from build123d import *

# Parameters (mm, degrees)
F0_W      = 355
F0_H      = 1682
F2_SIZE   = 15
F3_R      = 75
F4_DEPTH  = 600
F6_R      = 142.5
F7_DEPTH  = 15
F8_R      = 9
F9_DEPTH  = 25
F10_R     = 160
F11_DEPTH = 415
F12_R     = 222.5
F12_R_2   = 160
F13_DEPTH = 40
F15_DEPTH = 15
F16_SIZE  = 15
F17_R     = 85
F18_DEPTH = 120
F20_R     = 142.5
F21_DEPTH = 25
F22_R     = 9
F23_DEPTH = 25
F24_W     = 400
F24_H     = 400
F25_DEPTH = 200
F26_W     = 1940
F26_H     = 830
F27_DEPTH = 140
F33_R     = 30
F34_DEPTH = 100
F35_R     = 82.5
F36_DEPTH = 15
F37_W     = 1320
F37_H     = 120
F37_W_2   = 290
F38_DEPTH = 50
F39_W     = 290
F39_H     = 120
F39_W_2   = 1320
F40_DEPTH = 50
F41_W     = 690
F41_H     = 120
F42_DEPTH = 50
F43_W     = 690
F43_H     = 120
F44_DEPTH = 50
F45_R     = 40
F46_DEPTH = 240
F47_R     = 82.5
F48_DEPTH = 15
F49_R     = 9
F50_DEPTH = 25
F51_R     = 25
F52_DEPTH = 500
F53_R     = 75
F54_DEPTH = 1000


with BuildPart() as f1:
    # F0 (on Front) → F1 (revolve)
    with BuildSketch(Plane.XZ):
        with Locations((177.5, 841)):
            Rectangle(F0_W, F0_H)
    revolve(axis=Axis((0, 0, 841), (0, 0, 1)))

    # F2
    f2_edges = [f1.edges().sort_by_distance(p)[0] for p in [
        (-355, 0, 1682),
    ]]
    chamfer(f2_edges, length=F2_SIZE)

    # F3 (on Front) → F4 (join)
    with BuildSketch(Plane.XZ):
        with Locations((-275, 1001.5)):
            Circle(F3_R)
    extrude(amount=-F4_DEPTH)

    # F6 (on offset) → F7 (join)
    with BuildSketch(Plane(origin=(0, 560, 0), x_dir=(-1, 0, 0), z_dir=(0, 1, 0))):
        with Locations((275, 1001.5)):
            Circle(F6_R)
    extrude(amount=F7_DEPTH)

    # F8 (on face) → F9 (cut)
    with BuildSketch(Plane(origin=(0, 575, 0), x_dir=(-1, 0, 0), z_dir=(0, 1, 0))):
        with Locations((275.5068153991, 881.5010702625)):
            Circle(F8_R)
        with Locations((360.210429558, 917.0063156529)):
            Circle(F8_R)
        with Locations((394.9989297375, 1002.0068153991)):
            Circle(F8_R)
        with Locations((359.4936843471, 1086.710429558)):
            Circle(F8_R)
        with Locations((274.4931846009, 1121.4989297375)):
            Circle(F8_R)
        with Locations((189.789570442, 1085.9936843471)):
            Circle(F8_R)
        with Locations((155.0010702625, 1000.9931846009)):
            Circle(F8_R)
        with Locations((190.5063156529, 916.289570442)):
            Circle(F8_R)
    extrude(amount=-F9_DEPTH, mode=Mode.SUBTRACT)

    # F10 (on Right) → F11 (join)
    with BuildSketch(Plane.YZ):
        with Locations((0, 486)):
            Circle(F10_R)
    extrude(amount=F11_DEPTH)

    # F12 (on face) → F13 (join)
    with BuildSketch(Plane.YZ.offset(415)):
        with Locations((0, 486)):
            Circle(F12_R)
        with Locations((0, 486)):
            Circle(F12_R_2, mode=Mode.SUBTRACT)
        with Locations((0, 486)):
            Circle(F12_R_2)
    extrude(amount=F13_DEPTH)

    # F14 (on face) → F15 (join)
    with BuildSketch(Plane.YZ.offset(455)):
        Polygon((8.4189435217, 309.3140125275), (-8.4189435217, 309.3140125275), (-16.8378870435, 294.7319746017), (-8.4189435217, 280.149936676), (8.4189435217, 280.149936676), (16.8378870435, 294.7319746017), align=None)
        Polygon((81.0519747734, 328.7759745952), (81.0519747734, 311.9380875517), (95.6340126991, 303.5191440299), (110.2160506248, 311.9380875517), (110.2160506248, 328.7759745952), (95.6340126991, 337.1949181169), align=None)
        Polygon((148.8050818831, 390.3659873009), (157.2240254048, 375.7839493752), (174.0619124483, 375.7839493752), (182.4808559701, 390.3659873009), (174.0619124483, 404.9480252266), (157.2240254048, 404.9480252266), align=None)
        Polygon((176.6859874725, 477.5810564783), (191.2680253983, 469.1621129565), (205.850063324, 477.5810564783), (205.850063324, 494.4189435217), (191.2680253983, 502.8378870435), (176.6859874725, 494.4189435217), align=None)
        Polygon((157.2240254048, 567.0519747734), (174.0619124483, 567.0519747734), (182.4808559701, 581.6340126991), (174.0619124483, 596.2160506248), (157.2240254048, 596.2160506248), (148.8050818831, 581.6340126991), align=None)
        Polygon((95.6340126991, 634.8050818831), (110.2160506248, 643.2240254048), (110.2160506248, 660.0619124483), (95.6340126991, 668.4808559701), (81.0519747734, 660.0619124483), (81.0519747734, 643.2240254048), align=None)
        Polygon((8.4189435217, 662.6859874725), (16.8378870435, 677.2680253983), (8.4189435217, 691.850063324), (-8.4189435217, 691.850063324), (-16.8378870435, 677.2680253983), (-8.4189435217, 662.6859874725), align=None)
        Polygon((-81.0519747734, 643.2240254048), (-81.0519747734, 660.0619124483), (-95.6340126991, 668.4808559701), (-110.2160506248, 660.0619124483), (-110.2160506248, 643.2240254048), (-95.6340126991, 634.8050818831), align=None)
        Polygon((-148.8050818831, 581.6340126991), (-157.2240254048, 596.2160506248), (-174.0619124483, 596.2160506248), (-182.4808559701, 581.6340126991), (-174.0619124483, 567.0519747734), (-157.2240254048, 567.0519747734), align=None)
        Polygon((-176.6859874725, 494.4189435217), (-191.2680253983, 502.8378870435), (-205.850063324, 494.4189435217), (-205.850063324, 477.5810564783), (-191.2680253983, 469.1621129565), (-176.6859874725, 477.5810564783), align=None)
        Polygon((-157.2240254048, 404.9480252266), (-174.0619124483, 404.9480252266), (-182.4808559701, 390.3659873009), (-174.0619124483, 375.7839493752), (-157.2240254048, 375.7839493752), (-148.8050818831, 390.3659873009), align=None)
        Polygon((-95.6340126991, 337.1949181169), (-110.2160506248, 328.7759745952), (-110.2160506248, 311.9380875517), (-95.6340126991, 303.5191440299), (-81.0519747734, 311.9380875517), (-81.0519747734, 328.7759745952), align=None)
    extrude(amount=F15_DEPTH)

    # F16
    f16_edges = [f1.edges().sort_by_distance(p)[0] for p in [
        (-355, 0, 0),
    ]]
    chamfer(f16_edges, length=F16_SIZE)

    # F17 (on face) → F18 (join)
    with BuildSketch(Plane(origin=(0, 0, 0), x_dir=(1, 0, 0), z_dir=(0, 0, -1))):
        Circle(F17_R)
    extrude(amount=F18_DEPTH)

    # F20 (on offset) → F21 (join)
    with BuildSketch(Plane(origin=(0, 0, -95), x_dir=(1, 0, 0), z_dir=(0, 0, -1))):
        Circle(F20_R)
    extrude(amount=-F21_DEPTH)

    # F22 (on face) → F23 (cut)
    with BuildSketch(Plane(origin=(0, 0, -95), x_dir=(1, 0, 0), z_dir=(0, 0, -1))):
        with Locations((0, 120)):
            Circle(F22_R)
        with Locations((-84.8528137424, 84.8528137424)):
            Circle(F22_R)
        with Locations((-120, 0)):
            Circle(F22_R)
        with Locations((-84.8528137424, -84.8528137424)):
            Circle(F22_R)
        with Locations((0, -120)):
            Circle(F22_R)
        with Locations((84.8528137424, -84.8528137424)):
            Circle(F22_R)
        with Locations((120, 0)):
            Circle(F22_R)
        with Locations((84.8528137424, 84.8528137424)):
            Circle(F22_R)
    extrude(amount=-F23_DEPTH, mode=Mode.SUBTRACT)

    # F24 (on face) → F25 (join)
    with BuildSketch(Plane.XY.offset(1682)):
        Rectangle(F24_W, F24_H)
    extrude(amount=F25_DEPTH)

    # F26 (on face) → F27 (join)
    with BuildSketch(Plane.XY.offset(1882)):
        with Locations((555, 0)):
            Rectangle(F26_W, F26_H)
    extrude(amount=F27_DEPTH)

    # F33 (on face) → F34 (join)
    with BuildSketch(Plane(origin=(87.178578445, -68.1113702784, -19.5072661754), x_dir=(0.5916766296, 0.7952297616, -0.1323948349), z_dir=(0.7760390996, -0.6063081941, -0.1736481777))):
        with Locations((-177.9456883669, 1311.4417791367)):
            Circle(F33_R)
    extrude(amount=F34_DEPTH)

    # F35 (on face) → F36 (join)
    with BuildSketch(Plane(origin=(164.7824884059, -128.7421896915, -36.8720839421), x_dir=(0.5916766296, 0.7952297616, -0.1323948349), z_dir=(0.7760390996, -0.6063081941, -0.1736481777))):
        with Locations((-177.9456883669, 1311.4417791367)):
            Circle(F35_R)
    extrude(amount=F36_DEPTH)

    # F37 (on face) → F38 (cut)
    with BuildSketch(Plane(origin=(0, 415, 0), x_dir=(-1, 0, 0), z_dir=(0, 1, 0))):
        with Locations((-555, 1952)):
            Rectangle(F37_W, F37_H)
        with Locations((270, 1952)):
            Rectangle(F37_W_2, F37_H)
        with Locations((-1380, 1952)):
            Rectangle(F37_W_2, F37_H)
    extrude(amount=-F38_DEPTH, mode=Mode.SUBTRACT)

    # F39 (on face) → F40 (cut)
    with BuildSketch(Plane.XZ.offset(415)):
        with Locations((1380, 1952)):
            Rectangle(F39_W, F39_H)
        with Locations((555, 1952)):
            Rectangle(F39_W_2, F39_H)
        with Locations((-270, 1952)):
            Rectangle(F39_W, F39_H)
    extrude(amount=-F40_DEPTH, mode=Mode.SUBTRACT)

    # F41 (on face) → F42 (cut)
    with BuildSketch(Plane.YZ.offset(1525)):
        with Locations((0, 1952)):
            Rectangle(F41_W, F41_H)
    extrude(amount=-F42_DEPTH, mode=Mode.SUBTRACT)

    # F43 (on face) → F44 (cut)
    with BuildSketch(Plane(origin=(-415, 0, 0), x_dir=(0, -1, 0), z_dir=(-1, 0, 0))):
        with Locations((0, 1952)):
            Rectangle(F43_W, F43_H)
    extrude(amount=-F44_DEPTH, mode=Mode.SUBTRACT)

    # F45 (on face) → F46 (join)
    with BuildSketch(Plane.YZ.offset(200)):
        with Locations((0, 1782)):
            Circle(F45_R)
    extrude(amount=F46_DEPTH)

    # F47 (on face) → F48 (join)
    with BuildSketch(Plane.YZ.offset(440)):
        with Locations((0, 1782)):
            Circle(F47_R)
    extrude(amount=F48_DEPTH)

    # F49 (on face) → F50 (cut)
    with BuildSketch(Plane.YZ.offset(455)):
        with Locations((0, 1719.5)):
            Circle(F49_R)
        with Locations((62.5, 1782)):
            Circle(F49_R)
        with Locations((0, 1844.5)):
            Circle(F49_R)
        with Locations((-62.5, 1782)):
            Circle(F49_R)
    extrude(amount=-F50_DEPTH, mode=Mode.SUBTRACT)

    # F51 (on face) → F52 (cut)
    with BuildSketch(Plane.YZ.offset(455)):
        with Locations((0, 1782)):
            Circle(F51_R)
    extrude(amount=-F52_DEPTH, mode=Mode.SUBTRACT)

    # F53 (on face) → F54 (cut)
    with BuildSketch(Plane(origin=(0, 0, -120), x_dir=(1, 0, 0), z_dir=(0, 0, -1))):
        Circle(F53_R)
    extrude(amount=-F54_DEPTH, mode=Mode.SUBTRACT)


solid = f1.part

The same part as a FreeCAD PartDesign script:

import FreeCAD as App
import Part
import Sketcher

V = App.Vector
Q = App.Units.Quantity


def edges_at(feature, points):
    """Names of the edges that pass closest to the given points."""
    edges = feature.Shape.Edges
    near = lambda p: min(range(len(edges)), key=lambda i: edges[i].distToShape(Part.Vertex(*p))[0])
    return sorted({f"Edge{near(p) + 1}" for p in points})

doc = App.newDocument("Part")
body = doc.addObject("PartDesign::Body", "Body")

# Sketch on XZ plane
sketch1 = doc.addObject("Sketcher::SketchObject", "Sketch")
body.addObject(sketch1)
sketch1.AttachmentSupport = (doc.XZ_Plane, [""])
sketch1.MapMode = "FlatFace"
sketch1.addGeometry([
    Part.LineSegment(V(0, 1682, 0), V(0, 0, 0)),
    Part.LineSegment(V(0, 0, 0), V(355, 0, 0)),
    Part.LineSegment(V(355, 0, 0), V(355, 1682, 0)),
    Part.LineSegment(V(355, 1682, 0), V(0, 1682, 0)),
], False)
sketch1.addConstraint([
    Sketcher.Constraint("Coincident", 0, 2, 1, 1),
    Sketcher.Constraint("Coincident", 1, 2, 2, 1),
    Sketcher.Constraint("Coincident", 2, 2, 3, 1),
    Sketcher.Constraint("Coincident", 3, 2, 0, 1),
    Sketcher.Constraint("Vertical", 0),
    Sketcher.Constraint("Horizontal", 1),
    Sketcher.Constraint("Vertical", 2),
    Sketcher.Constraint("Horizontal", 3),
    Sketcher.Constraint("Coincident", 0, 2, -1, 1),
    Sketcher.Constraint("DistanceX", 1, 1, 1, 2, Q("355 mm")),
    Sketcher.Constraint("DistanceY", 0, 2, 0, 1, Q("1682 mm")),
])
revolution = doc.addObject("PartDesign::Revolution", "Revolution")
body.addObject(revolution)
revolution.Profile = sketch1
revolution.ReferenceAxis = (sketch1, ["V_Axis"])
revolution.Angle = 360
doc.recompute()

chamfer = doc.addObject("PartDesign::Chamfer", "Chamfer")
body.addObject(chamfer)
chamfer.Base = (revolution, edges_at(revolution, [(-355, 0, 1682)]))
chamfer.Size = 15

# Sketch on XZ plane
sketch2 = doc.addObject("Sketcher::SketchObject", "Sketch001")
body.addObject(sketch2)
sketch2.AttachmentSupport = (doc.XZ_Plane, [""])
sketch2.MapMode = "FlatFace"
sketch2.addGeometry(Part.Circle(V(-275, 1002, 0), V(0, 0, 1), 75), False)
sketch2.addConstraint([
    Sketcher.Constraint("Diameter", 0, Q("150 mm")),
    Sketcher.Constraint("DistanceX", 0, 3, -1, 1, Q("275 mm")),
    Sketcher.Constraint("DistanceY", -1, 1, 0, 3, Q("1001.5 mm")),
])
pad1 = doc.addObject("PartDesign::Pad", "Pad")
body.addObject(pad1)
pad1.Profile = sketch2
pad1.Length = 600
pad1.Reversed = True

# Sketch on XZ plane
sketch3 = doc.addObject("Sketcher::SketchObject", "Sketch002")
body.addObject(sketch3)
sketch3.AttachmentSupport = (doc.XZ_Plane, [""])
sketch3.MapMode = "FlatFace"
sketch3.AttachmentOffset = App.Placement(V(0, 0, -560), App.Rotation())
sketch3.addGeometry(Part.Circle(V(-275, 1002, 0), V(0, 0, 1), 142), False)
sketch3.addConstraint([
    Sketcher.Constraint("Diameter", 0, Q("285 mm")),
    Sketcher.Constraint("DistanceX", 0, 3, -1, 1, Q("275 mm")),
    Sketcher.Constraint("DistanceY", -1, 1, 0, 3, Q("1001.5 mm")),
])
pad2 = doc.addObject("PartDesign::Pad", "Pad001")
body.addObject(pad2)
pad2.Profile = sketch3
pad2.Length = 15
pad2.Reversed = True

# Sketch on XZ plane
sketch4 = doc.addObject("Sketcher::SketchObject", "Sketch003")
body.addObject(sketch4)
sketch4.AttachmentSupport = (doc.XZ_Plane, [""])
sketch4.MapMode = "FlatFace"
sketch4.AttachmentOffset = App.Placement(V(0, 0, -575), App.Rotation())
sketch4.addGeometry([
    Part.Circle(V(-276, 882, 0), V(0, 0, 1), 9),  # 0
    Part.Circle(V(-360, 917, 0), V(0, 0, 1), 9),  # 1
    Part.Circle(V(-395, 1002, 0), V(0, 0, 1), 9),  # 2
    Part.Circle(V(-359, 1087, 0), V(0, 0, 1), 9),  # 3
    Part.Circle(V(-274, 1121, 0), V(0, 0, 1), 9),  # 4
    Part.Circle(V(-190, 1086, 0), V(0, 0, 1), 9),  # 5
    Part.Circle(V(-155, 1001, 0), V(0, 0, 1), 9),  # 6
    Part.Circle(V(-191, 916, 0), V(0, 0, 1), 9),  # 7
], False)
sketch4.addConstraint([
    Sketcher.Constraint("Equal", 0, 1),
    Sketcher.Constraint("Equal", 1, 2),
    Sketcher.Constraint("Equal", 2, 3),
    Sketcher.Constraint("Equal", 3, 4),
    Sketcher.Constraint("Equal", 4, 5),
    Sketcher.Constraint("Equal", 5, 6),
    Sketcher.Constraint("Equal", 6, 7),
    Sketcher.Constraint("Diameter", 0, Q("18 mm")),
    Sketcher.Constraint("DistanceX", 2, 3, 1, 3, Q("34.7885 mm")),
    Sketcher.Constraint("DistanceY", 1, 3, 2, 3, Q("85.0005 mm")),
    Sketcher.Constraint("DistanceX", 3, 3, 4, 3, Q("85.0005 mm")),
    Sketcher.Constraint("DistanceY", 3, 3, 4, 3, Q("34.7885 mm")),
    Sketcher.Constraint("DistanceX", 5, 3, 6, 3, Q("34.7885 mm")),
    Sketcher.Constraint("DistanceY", 6, 3, 5, 3, Q("85.0005 mm")),
    Sketcher.Constraint("DistanceX", 0, 3, 7, 3, Q("85.0005 mm")),
    Sketcher.Constraint("DistanceY", 0, 3, 7, 3, Q("34.7885 mm")),
    Sketcher.Constraint("DistanceY", -1, 1, 0, 3, Q("881.50107 mm")),
    Sketcher.Constraint("DistanceX", 1, 3, -1, 1, Q("360.21043 mm")),
    Sketcher.Constraint("DistanceY", -1, 1, 3, 3, Q("1086.71043 mm")),
    Sketcher.Constraint("DistanceX", 5, 3, -1, 1, Q("189.78957 mm")),
    Sketcher.Constraint("DistanceX", 3, 3, 0, 3, Q("83.986869 mm")),
    Sketcher.Constraint("DistanceY", 2, 3, 5, 3, Q("83.986869 mm")),
    Sketcher.Constraint("DistanceX", 0, 3, -1, 1, Q("275.506815 mm")),
    Sketcher.Constraint("DistanceY", -1, 1, 1, 3, Q("917.006316 mm")),
])
pocket1 = doc.addObject("PartDesign::Pocket", "Pocket")
body.addObject(pocket1)
pocket1.Profile = sketch4
pocket1.Length = 25
pocket1.Reversed = True

# Sketch on YZ plane
sketch5 = doc.addObject("Sketcher::SketchObject", "Sketch004")
body.addObject(sketch5)
sketch5.AttachmentSupport = (doc.YZ_Plane, [""])
sketch5.MapMode = "FlatFace"
sketch5.addGeometry(Part.Circle(V(0, 486, 0), V(0, 0, 1), 160), False)
sketch5.addConstraint([
    Sketcher.Constraint("PointOnObject", 0, 3, -2),
    Sketcher.Constraint("Diameter", 0, Q("320 mm")),
    Sketcher.Constraint("DistanceY", -1, 1, 0, 3, Q("486 mm")),
])
pad3 = doc.addObject("PartDesign::Pad", "Pad002")
body.addObject(pad3)
pad3.Profile = sketch5
pad3.Length = 415

# Sketch on YZ plane
sketch6 = doc.addObject("Sketcher::SketchObject", "Sketch005")
body.addObject(sketch6)
sketch6.AttachmentSupport = (doc.YZ_Plane, [""])
sketch6.MapMode = "FlatFace"
sketch6.AttachmentOffset = App.Placement(V(0, 0, 415), App.Rotation())
sketch6.addGeometry(Part.Circle(V(0, 486, 0), V(0, 0, 1), 222), False)
sketch6.addConstraint([
    Sketcher.Constraint("PointOnObject", 0, 3, -2),
    Sketcher.Constraint("Diameter", 0, Q("445 mm")),
    Sketcher.Constraint("DistanceY", -1, 1, 0, 3, Q("486 mm")),
])
pad4 = doc.addObject("PartDesign::Pad", "Pad003")
body.addObject(pad4)
pad4.Profile = sketch6
pad4.Length = 40

# Sketch on YZ plane
sketch7 = doc.addObject("Sketcher::SketchObject", "Sketch006")
body.addObject(sketch7)
sketch7.AttachmentSupport = (doc.YZ_Plane, [""])
sketch7.MapMode = "FlatFace"
sketch7.AttachmentOffset = App.Placement(V(0, 0, 455), App.Rotation())
sketch7.addGeometry([
    Part.LineSegment(V(8, 309, 0), V(-8, 309, 0)),  # 0
    Part.LineSegment(V(-8, 309, 0), V(-17, 295, 0)),  # 1
    Part.LineSegment(V(-17, 295, 0), V(-8, 280, 0)),  # 2
    Part.LineSegment(V(-8, 280, 0), V(8, 280, 0)),  # 3
    Part.LineSegment(V(8, 280, 0), V(17, 295, 0)),  # 4
    Part.LineSegment(V(17, 295, 0), V(8, 309, 0)),  # 5
    Part.LineSegment(V(81, 329, 0), V(81, 312, 0)),  # 6
    Part.LineSegment(V(81, 312, 0), V(96, 304, 0)),  # 7
    Part.LineSegment(V(96, 304, 0), V(110, 312, 0)),  # 8
    Part.LineSegment(V(110, 312, 0), V(110, 329, 0)),  # 9
    Part.LineSegment(V(110, 329, 0), V(96, 337, 0)),  # 10
    Part.LineSegment(V(96, 337, 0), V(81, 329, 0)),  # 11
    Part.LineSegment(V(149, 390, 0), V(157, 376, 0)),  # 12
    Part.LineSegment(V(157, 376, 0), V(174, 376, 0)),  # 13
    Part.LineSegment(V(174, 376, 0), V(182, 390, 0)),  # 14
    Part.LineSegment(V(182, 390, 0), V(174, 405, 0)),  # 15
    Part.LineSegment(V(174, 405, 0), V(157, 405, 0)),  # 16
    Part.LineSegment(V(157, 405, 0), V(149, 390, 0)),  # 17
    Part.LineSegment(V(177, 478, 0), V(191, 469, 0)),  # 18
    Part.LineSegment(V(191, 469, 0), V(206, 478, 0)),  # 19
    Part.LineSegment(V(206, 478, 0), V(206, 494, 0)),  # 20
    Part.LineSegment(V(206, 494, 0), V(191, 503, 0)),  # 21
    Part.LineSegment(V(191, 503, 0), V(177, 494, 0)),  # 22
    Part.LineSegment(V(177, 494, 0), V(177, 478, 0)),  # 23
    Part.LineSegment(V(157, 567, 0), V(174, 567, 0)),  # 24
    Part.LineSegment(V(174, 567, 0), V(182, 582, 0)),  # 25
    Part.LineSegment(V(182, 582, 0), V(174, 596, 0)),  # 26
    Part.LineSegment(V(174, 596, 0), V(157, 596, 0)),  # 27
    Part.LineSegment(V(157, 596, 0), V(149, 582, 0)),  # 28
    Part.LineSegment(V(149, 582, 0), V(157, 567, 0)),  # 29
    Part.LineSegment(V(96, 635, 0), V(110, 643, 0)),  # 30
    Part.LineSegment(V(110, 643, 0), V(110, 660, 0)),  # 31
    Part.LineSegment(V(110, 660, 0), V(96, 668, 0)),  # 32
    Part.LineSegment(V(96, 668, 0), V(81, 660, 0)),  # 33
    Part.LineSegment(V(81, 660, 0), V(81, 643, 0)),  # 34
    Part.LineSegment(V(81, 643, 0), V(96, 635, 0)),  # 35
    Part.LineSegment(V(8, 663, 0), V(17, 677, 0)),  # 36
    Part.LineSegment(V(17, 677, 0), V(8, 692, 0)),  # 37
    Part.LineSegment(V(8, 692, 0), V(-8, 692, 0)),  # 38
    Part.LineSegment(V(-8, 692, 0), V(-17, 677, 0)),  # 39
    Part.LineSegment(V(-17, 677, 0), V(-8, 663, 0)),  # 40
    Part.LineSegment(V(-8, 663, 0), V(8, 663, 0)),  # 41
    Part.LineSegment(V(-81, 643, 0), V(-81, 660, 0)),  # 42
    Part.LineSegment(V(-81, 660, 0), V(-96, 668, 0)),  # 43
    Part.LineSegment(V(-96, 668, 0), V(-110, 660, 0)),  # 44
    Part.LineSegment(V(-110, 660, 0), V(-110, 643, 0)),  # 45
    Part.LineSegment(V(-110, 643, 0), V(-96, 635, 0)),  # 46
    Part.LineSegment(V(-96, 635, 0), V(-81, 643, 0)),  # 47
    Part.LineSegment(V(-149, 582, 0), V(-157, 596, 0)),  # 48
    Part.LineSegment(V(-157, 596, 0), V(-174, 596, 0)),  # 49
    Part.LineSegment(V(-174, 596, 0), V(-182, 582, 0)),  # 50
    Part.LineSegment(V(-182, 582, 0), V(-174, 567, 0)),  # 51
    Part.LineSegment(V(-174, 567, 0), V(-157, 567, 0)),  # 52
    Part.LineSegment(V(-157, 567, 0), V(-149, 582, 0)),  # 53
    Part.LineSegment(V(-177, 494, 0), V(-191, 503, 0)),  # 54
    Part.LineSegment(V(-191, 503, 0), V(-206, 494, 0)),  # 55
    Part.LineSegment(V(-206, 494, 0), V(-206, 478, 0)),  # 56
    Part.LineSegment(V(-206, 478, 0), V(-191, 469, 0)),  # 57
    Part.LineSegment(V(-191, 469, 0), V(-177, 478, 0)),  # 58
    Part.LineSegment(V(-177, 478, 0), V(-177, 494, 0)),  # 59
    Part.LineSegment(V(-157, 405, 0), V(-174, 405, 0)),  # 60
    Part.LineSegment(V(-174, 405, 0), V(-182, 390, 0)),  # 61
    Part.LineSegment(V(-182, 390, 0), V(-174, 376, 0)),  # 62
    Part.LineSegment(V(-174, 376, 0), V(-157, 376, 0)),  # 63
    Part.LineSegment(V(-157, 376, 0), V(-149, 390, 0)),  # 64
    Part.LineSegment(V(-149, 390, 0), V(-157, 405, 0)),  # 65
    Part.LineSegment(V(-96, 337, 0), V(-110, 329, 0)),  # 66
    Part.LineSegment(V(-110, 329, 0), V(-110, 312, 0)),  # 67
    Part.LineSegment(V(-110, 312, 0), V(-96, 304, 0)),  # 68
    Part.LineSegment(V(-96, 304, 0), V(-81, 312, 0)),  # 69
    Part.LineSegment(V(-81, 312, 0), V(-81, 329, 0)),  # 70
    Part.LineSegment(V(-81, 329, 0), V(-96, 337, 0)),  # 71
], False)
sketch7.addConstraint([
    Sketcher.Constraint("Coincident", 0, 2, 1, 1),
    Sketcher.Constraint("Coincident", 1, 2, 2, 1),
    Sketcher.Constraint("Coincident", 2, 2, 3, 1),
    Sketcher.Constraint("Coincident", 3, 2, 4, 1),
    Sketcher.Constraint("Coincident", 4, 2, 5, 1),
    Sketcher.Constraint("Coincident", 5, 2, 0, 1),
    Sketcher.Constraint("Coincident", 6, 2, 7, 1),
    Sketcher.Constraint("Coincident", 7, 2, 8, 1),
    Sketcher.Constraint("Coincident", 8, 2, 9, 1),
    Sketcher.Constraint("Coincident", 9, 2, 10, 1),
    Sketcher.Constraint("Coincident", 10, 2, 11, 1),
    Sketcher.Constraint("Coincident", 11, 2, 6, 1),
    Sketcher.Constraint("Coincident", 12, 2, 13, 1),
    Sketcher.Constraint("Coincident", 13, 2, 14, 1),
    Sketcher.Constraint("Coincident", 14, 2, 15, 1),
    Sketcher.Constraint("Coincident", 15, 2, 16, 1),
    Sketcher.Constraint("Coincident", 16, 2, 17, 1),
    Sketcher.Constraint("Coincident", 17, 2, 12, 1),
    Sketcher.Constraint("Coincident", 18, 2, 19, 1),
    Sketcher.Constraint("Coincident", 19, 2, 20, 1),
    Sketcher.Constraint("Coincident", 20, 2, 21, 1),
    Sketcher.Constraint("Coincident", 21, 2, 22, 1),
    Sketcher.Constraint("Coincident", 22, 2, 23, 1),
    Sketcher.Constraint("Coincident", 23, 2, 18, 1),
    Sketcher.Constraint("Coincident", 24, 2, 25, 1),
    Sketcher.Constraint("Coincident", 25, 2, 26, 1),
    Sketcher.Constraint("Coincident", 26, 2, 27, 1),
    Sketcher.Constraint("Coincident", 27, 2, 28, 1),
    Sketcher.Constraint("Coincident", 28, 2, 29, 1),
    Sketcher.Constraint("Coincident", 29, 2, 24, 1),
    Sketcher.Constraint("Coincident", 30, 2, 31, 1),
    Sketcher.Constraint("Coincident", 31, 2, 32, 1),
    Sketcher.Constraint("Coincident", 32, 2, 33, 1),
    Sketcher.Constraint("Coincident", 33, 2, 34, 1),
    Sketcher.Constraint("Coincident", 34, 2, 35, 1),
    Sketcher.Constraint("Coincident", 35, 2, 30, 1),
    Sketcher.Constraint("Coincident", 36, 2, 37, 1),
    Sketcher.Constraint("Coincident", 37, 2, 38, 1),
    Sketcher.Constraint("Coincident", 38, 2, 39, 1),
    Sketcher.Constraint("Coincident", 39, 2, 40, 1),
    Sketcher.Constraint("Coincident", 40, 2, 41, 1),
    Sketcher.Constraint("Coincident", 41, 2, 36, 1),
    Sketcher.Constraint("Coincident", 42, 2, 43, 1),
    Sketcher.Constraint("Coincident", 43, 2, 44, 1),
    Sketcher.Constraint("Coincident", 44, 2, 45, 1),
    Sketcher.Constraint("Coincident", 45, 2, 46, 1),
    Sketcher.Constraint("Coincident", 46, 2, 47, 1),
    Sketcher.Constraint("Coincident", 47, 2, 42, 1),
    Sketcher.Constraint("Coincident", 48, 2, 49, 1),
    Sketcher.Constraint("Coincident", 49, 2, 50, 1),
    Sketcher.Constraint("Coincident", 50, 2, 51, 1),
    Sketcher.Constraint("Coincident", 51, 2, 52, 1),
    Sketcher.Constraint("Coincident", 52, 2, 53, 1),
    Sketcher.Constraint("Coincident", 53, 2, 48, 1),
    Sketcher.Constraint("Coincident", 54, 2, 55, 1),
    Sketcher.Constraint("Coincident", 55, 2, 56, 1),
    Sketcher.Constraint("Coincident", 56, 2, 57, 1),
    Sketcher.Constraint("Coincident", 57, 2, 58, 1),
    Sketcher.Constraint("Coincident", 58, 2, 59, 1),
    Sketcher.Constraint("Coincident", 59, 2, 54, 1),
    Sketcher.Constraint("Coincident", 60, 2, 61, 1),
    Sketcher.Constraint("Coincident", 61, 2, 62, 1),
    Sketcher.Constraint("Coincident", 62, 2, 63, 1),
    Sketcher.Constraint("Coincident", 63, 2, 64, 1),
    Sketcher.Constraint("Coincident", 64, 2, 65, 1),
    Sketcher.Constraint("Coincident", 65, 2, 60, 1),
    Sketcher.Constraint("Coincident", 66, 2, 67, 1),
    Sketcher.Constraint("Coincident", 67, 2, 68, 1),
    Sketcher.Constraint("Coincident", 68, 2, 69, 1),
    Sketcher.Constraint("Coincident", 69, 2, 70, 1),
    Sketcher.Constraint("Coincident", 70, 2, 71, 1),
    Sketcher.Constraint("Coincident", 71, 2, 66, 1),
    Sketcher.Constraint("Horizontal", 0),
    Sketcher.Constraint("Horizontal", 3),
    Sketcher.Constraint("Vertical", 6),
    Sketcher.Constraint("Vertical", 9),
    Sketcher.Constraint("Horizontal", 13),
    Sketcher.Constraint("Horizontal", 16),
    Sketcher.Constraint("Vertical", 20),
    Sketcher.Constraint("Vertical", 23),
    Sketcher.Constraint("Horizontal", 24),
    Sketcher.Constraint("Horizontal", 27),
    Sketcher.Constraint("Vertical", 31),
    Sketcher.Constraint("Vertical", 34),
    Sketcher.Constraint("Horizontal", 38),
    Sketcher.Constraint("Horizontal", 41),
    Sketcher.Constraint("Vertical", 42),
    Sketcher.Constraint("Vertical", 45),
    Sketcher.Constraint("Horizontal", 49),
    Sketcher.Constraint("Horizontal", 52),
    Sketcher.Constraint("Vertical", 56),
    Sketcher.Constraint("Vertical", 59),
    Sketcher.Constraint("Horizontal", 60),
    Sketcher.Constraint("Horizontal", 63),
    Sketcher.Constraint("Vertical", 67),
    Sketcher.Constraint("Vertical", 70),
    Sketcher.Constraint("Symmetric", 1, 2, 4, 2, -2),
    Sketcher.Constraint("Symmetric", 36, 2, 39, 2, -2),
    Sketcher.Constraint("Symmetric", 33, 2, 42, 2, -2),
    Sketcher.Constraint("Symmetric", 32, 2, 43, 2, -2),
    Sketcher.Constraint("Symmetric", 31, 2, 44, 2, -2),
    Sketcher.Constraint("Symmetric", 35, 2, 46, 2, -2),
    Sketcher.Constraint("Symmetric", 27, 2, 48, 2, -2),
    Sketcher.Constraint("Symmetric", 25, 2, 50, 2, -2),
    Sketcher.Constraint("Symmetric", 24, 2, 51, 2, -2),
    Sketcher.Constraint("Symmetric", 28, 2, 53, 2, -2),
    Sketcher.Constraint("Symmetric", 21, 2, 54, 2, -2),
    Sketcher.Constraint("Symmetric", 20, 2, 55, 2, -2),
    Sketcher.Constraint("Symmetric", 18, 2, 57, 2, -2),
    Sketcher.Constraint("Symmetric", 23, 2, 58, 2, -2),
    Sketcher.Constraint("Symmetric", 15, 2, 60, 2, -2),
    Sketcher.Constraint("Symmetric", 14, 2, 61, 2, -2),
    Sketcher.Constraint("Symmetric", 13, 2, 62, 2, -2),
    Sketcher.Constraint("Symmetric", 17, 2, 64, 2, -2),
    Sketcher.Constraint("Symmetric", 9, 2, 66, 2, -2),
    Sketcher.Constraint("Symmetric", 7, 2, 68, 2, -2),
    Sketcher.Constraint("Symmetric", 6, 2, 69, 2, -2),
    Sketcher.Constraint("Symmetric", 10, 2, 71, 2, -2),
    Sketcher.Constraint("Parallel", 1, 4),
    Sketcher.Constraint("Parallel", 2, 5),
    Sketcher.Constraint("Perpendicular", 4, 7),
    Sketcher.Constraint("Perpendicular", 5, 8),
    Sketcher.Constraint("Parallel", 7, 10),
    Sketcher.Constraint("Parallel", 8, 11),
    Sketcher.Constraint("Perpendicular", 11, 12),
    Sketcher.Constraint("Perpendicular", 10, 14),
    Sketcher.Constraint("Parallel", 12, 15),
    Sketcher.Constraint("Parallel", 14, 17),
    Sketcher.Constraint("Perpendicular", 17, 18),
    Sketcher.Constraint("Perpendicular", 15, 19),
    Sketcher.Constraint("Parallel", 18, 21),
    Sketcher.Constraint("Parallel", 19, 22),
    Sketcher.Constraint("Perpendicular", 21, 25),
    Sketcher.Constraint("Perpendicular", 22, 26),
    Sketcher.Constraint("Parallel", 25, 28),
    Sketcher.Constraint("Parallel", 26, 29),
    Sketcher.Constraint("Perpendicular", 29, 30),
    Sketcher.Constraint("Perpendicular", 28, 32),
    Sketcher.Constraint("Parallel", 30, 33),
    Sketcher.Constraint("Parallel", 32, 35),
    Sketcher.Constraint("Perpendicular", 35, 36),
    Sketcher.Constraint("Perpendicular", 33, 37),
    Sketcher.Constraint("Parallel", 36, 39),
    Sketcher.Constraint("Parallel", 37, 40),
    Sketcher.Constraint("Perpendicular", 39, 43),
    Sketcher.Constraint("Parallel", 43, 46),
    Sketcher.Constraint("Parallel", 44, 47),
    Sketcher.Constraint("Perpendicular", 46, 50),
    Sketcher.Constraint("Parallel", 50, 53),
    Sketcher.Constraint("Perpendicular", 53, 54),
    Sketcher.Constraint("Parallel", 54, 57),
    Sketcher.Constraint("Parallel", 61, 64),
    Sketcher.Constraint("Parallel", 62, 65),
    Sketcher.Constraint("Perpendicular", 64, 68),
    Sketcher.Constraint("Parallel", 68, 71),
    Sketcher.Constraint("Horizontal", 6, 2, 8, 2),
    Sketcher.Constraint("Horizontal", 9, 2, 11, 2),
    Sketcher.Constraint("Horizontal", 14, 2, 17, 2),
    Sketcher.Constraint("Horizontal", 20, 2, 22, 2),
    Sketcher.Constraint("Horizontal", 19, 2, 23, 2),
    Sketcher.Constraint("Horizontal", 25, 2, 28, 2),
    Sketcher.Constraint("Horizontal", 31, 2, 33, 2),
    Sketcher.Constraint("Horizontal", 30, 2, 34, 2),
    Sketcher.Constraint("Vertical", 0, 2, 2, 2),
    Sketcher.Constraint("Vertical", 13, 2, 15, 2),
    Sketcher.Constraint("Vertical", 15, 2, 24, 2),
    Sketcher.Constraint("Vertical", 14, 2, 25, 2),
    Sketcher.Constraint("Vertical", 24, 2, 26, 2),
    Sketcher.Constraint("Vertical", 16, 2, 27, 2),
    Sketcher.Constraint("Vertical", 9, 2, 30, 2),
    Sketcher.Constraint("Vertical", 10, 2, 32, 2),
    Sketcher.Constraint("Vertical", 4, 2, 36, 2),
    Sketcher.Constraint("Vertical", 5, 2, 37, 2),
    Sketcher.Constraint("Vertical", 38, 2, 40, 2),
    Sketcher.Constraint("Equal", 3, 13),
    Sketcher.Constraint("Equal", 63, 6),
    Sketcher.Constraint("Equal", 9, 20),
    Sketcher.Constraint("Equal", 23, 31),
    Sketcher.Constraint("Equal", 5, 7),
    Sketcher.Constraint("Equal", 11, 12),
    Sketcher.Constraint("Equal", 17, 18),
    Sketcher.Constraint("Angle", 1, Q("-120 deg")),
    Sketcher.Constraint("DistanceX", 0, 2, 0, 1, Q("16.837887 mm")),
    Sketcher.Constraint("DistanceX", -1, 1, 8, 2, Q("110.216051 mm")),
    Sketcher.Constraint("DistanceY", -1, 1, 10, 2, Q("337.194918 mm")),
    Sketcher.Constraint("DistanceY", -1, 1, 12, 2, Q("375.783949 mm")),
    Sketcher.Constraint("DistanceX", -1, 1, 17, 2, Q("148.805082 mm")),
    Sketcher.Constraint("DistanceY", -1, 1, 26, 2, Q("596.216051 mm")),
    Sketcher.Constraint("DistanceY", -1, 1, 35, 2, Q("634.805082 mm")),
    Sketcher.Constraint("Distance", 1, Q("16.837887 mm")),
    Sketcher.Constraint("DistanceY", -1, 1, 0, 2, Q("309.314013 mm")),
    Sketcher.Constraint("DistanceX", -1, 1, 18, 2, Q("191.268025 mm")),
    Sketcher.Constraint("DistanceY", -1, 1, 18, 2, Q("469.162113 mm")),
    Sketcher.Constraint("DistanceY", -1, 1, 36, 2, Q("677.268025 mm")),
])
pad5 = doc.addObject("PartDesign::Pad", "Pad004")
body.addObject(pad5)
pad5.Profile = sketch7
pad5.Length = 15
doc.recompute()

chamfer2 = doc.addObject("PartDesign::Chamfer", "Chamfer001")
body.addObject(chamfer2)
chamfer2.Base = (pad5, edges_at(pad5, [(-355, 0, 0)]))
chamfer2.Size = 15

# Sketch on XY plane
sketch8 = doc.addObject("Sketcher::SketchObject", "Sketch007")
body.addObject(sketch8)
sketch8.AttachmentSupport = (doc.XY_Plane, [""])
sketch8.MapMode = "FlatFace"
sketch8.addGeometry(Part.Circle(V(0, 0, 0), V(0, 0, 1), 85), False)
sketch8.addConstraint([
    Sketcher.Constraint("Coincident", 0, 3, -1, 1),
    Sketcher.Constraint("Diameter", 0, Q("170 mm")),
])
pad6 = doc.addObject("PartDesign::Pad", "Pad005")
body.addObject(pad6)
pad6.Profile = sketch8
pad6.Length = 120
pad6.Reversed = True

# Sketch on XY plane
sketch9 = doc.addObject("Sketcher::SketchObject", "Sketch008")
body.addObject(sketch9)
sketch9.AttachmentSupport = (doc.XY_Plane, [""])
sketch9.MapMode = "FlatFace"
sketch9.AttachmentOffset = App.Placement(V(0, 0, -95), App.Rotation())
sketch9.addGeometry(Part.Circle(V(0, 0, 0), V(0, 0, 1), 142), False)
sketch9.addConstraint([
    Sketcher.Constraint("Coincident", 0, 3, -1, 1),
    Sketcher.Constraint("Diameter", 0, Q("285 mm")),
])
pad7 = doc.addObject("PartDesign::Pad", "Pad006")
body.addObject(pad7)
pad7.Profile = sketch9
pad7.Length = 25

# Sketch on XY plane
sketch10 = doc.addObject("Sketcher::SketchObject", "Sketch009")
body.addObject(sketch10)
sketch10.AttachmentSupport = (doc.XY_Plane, [""])
sketch10.MapMode = "FlatFace"
sketch10.AttachmentOffset = App.Placement(V(0, 0, -95), App.Rotation())
sketch10.addGeometry([
    Part.Circle(V(0, -120, 0), V(0, 0, 1), 9),  # 0
    Part.Circle(V(-85, -85, 0), V(0, 0, 1), 9),  # 1
    Part.Circle(V(-120, 0, 0), V(0, 0, 1), 9),  # 2
    Part.Circle(V(-85, 85, 0), V(0, 0, 1), 9),  # 3
    Part.Circle(V(0, 120, 0), V(0, 0, 1), 9),  # 4
    Part.Circle(V(85, 85, 0), V(0, 0, 1), 9),  # 5
    Part.Circle(V(120, 0, 0), V(0, 0, 1), 9),  # 6
    Part.Circle(V(85, -85, 0), V(0, 0, 1), 9),  # 7
], False)
sketch10.addConstraint([
    Sketcher.Constraint("Equal", 0, 1),
    Sketcher.Constraint("Equal", 1, 2),
    Sketcher.Constraint("Equal", 2, 3),
    Sketcher.Constraint("Equal", 3, 4),
    Sketcher.Constraint("Equal", 4, 5),
    Sketcher.Constraint("Equal", 5, 6),
    Sketcher.Constraint("Equal", 6, 7),
    Sketcher.Constraint("Symmetric", 0, 3, 4, 3, -1, 1),
    Sketcher.Constraint("Symmetric", 1, 3, 5, 3, -1, 1),
    Sketcher.Constraint("Symmetric", 2, 3, 6, 3, -1, 1),
    Sketcher.Constraint("Symmetric", 3, 3, 7, 3, -1, 1),
    Sketcher.Constraint("Symmetric", 3, 3, 5, 3, -2),
    Sketcher.Constraint("PointOnObject", 0, 3, -2),
    Sketcher.Constraint("PointOnObject", 2, 3, -1),
    Sketcher.Constraint("Diameter", 0, Q("18 mm")),
    Sketcher.Constraint("DistanceY", 0, 3, -1, 1, Q("120 mm")),
    Sketcher.Constraint("DistanceX", 2, 3, -1, 1, Q("120 mm")),
    Sketcher.Constraint("DistanceX", 1, 3, -1, 1, Q("84.852814 mm")),
    Sketcher.Constraint("DistanceY", 1, 3, -1, 1, Q("84.852814 mm")),
])
pocket2 = doc.addObject("PartDesign::Pocket", "Pocket001")
body.addObject(pocket2)
pocket2.Profile = sketch10
pocket2.Length = 25
pocket2.Reversed = True

# Sketch on XY plane
sketch11 = doc.addObject("Sketcher::SketchObject", "Sketch010")
body.addObject(sketch11)
sketch11.AttachmentSupport = (doc.XY_Plane, [""])
sketch11.MapMode = "FlatFace"
sketch11.AttachmentOffset = App.Placement(V(0, 0, 1682), App.Rotation())
sketch11.addGeometry([
    Part.LineSegment(V(-200, 200, 0), V(-200, -200, 0)),
    Part.LineSegment(V(-200, -200, 0), V(200, -200, 0)),
    Part.LineSegment(V(200, -200, 0), V(200, 200, 0)),
    Part.LineSegment(V(200, 200, 0), V(-200, 200, 0)),
], False)
sketch11.addConstraint([
    Sketcher.Constraint("Coincident", 0, 2, 1, 1),
    Sketcher.Constraint("Coincident", 1, 2, 2, 1),
    Sketcher.Constraint("Coincident", 2, 2, 3, 1),
    Sketcher.Constraint("Coincident", 3, 2, 0, 1),
    Sketcher.Constraint("Vertical", 0),
    Sketcher.Constraint("Horizontal", 1),
    Sketcher.Constraint("Vertical", 2),
    Sketcher.Constraint("Horizontal", 3),
    Sketcher.Constraint("Symmetric", 0, 2, 2, 2, -1, 1),
    Sketcher.Constraint("Equal", 3, 0),
    Sketcher.Constraint("DistanceX", 1, 1, 1, 2, Q("400 mm")),
])
pad8 = doc.addObject("PartDesign::Pad", "Pad007")
body.addObject(pad8)
pad8.Profile = sketch11
pad8.Length = 200

# Sketch on XY plane
sketch12 = doc.addObject("Sketcher::SketchObject", "Sketch011")
body.addObject(sketch12)
sketch12.AttachmentSupport = (doc.XY_Plane, [""])
sketch12.MapMode = "FlatFace"
sketch12.AttachmentOffset = App.Placement(V(0, 0, 1882), App.Rotation())
sketch12.addGeometry([
    Part.LineSegment(V(-415, 415, 0), V(-415, -415, 0)),
    Part.LineSegment(V(-415, -415, 0), V(1525, -415, 0)),
    Part.LineSegment(V(1525, -415, 0), V(1525, 415, 0)),
    Part.LineSegment(V(1525, 415, 0), V(-415, 415, 0)),
], False)
sketch12.addConstraint([
    Sketcher.Constraint("Coincident", 0, 2, 1, 1),
    Sketcher.Constraint("Coincident", 1, 2, 2, 1),
    Sketcher.Constraint("Coincident", 2, 2, 3, 1),
    Sketcher.Constraint("Coincident", 3, 2, 0, 1),
    Sketcher.Constraint("Vertical", 0),
    Sketcher.Constraint("Horizontal", 1),
    Sketcher.Constraint("Vertical", 2),
    Sketcher.Constraint("Horizontal", 3),
    Sketcher.Constraint("DistanceX", 1, 1, 1, 2, Q("1940 mm")),
    Sketcher.Constraint("DistanceY", 0, 2, 0, 1, Q("830 mm")),
    Sketcher.Constraint("DistanceX", 0, 2, -1, 1, Q("415 mm")),
    Sketcher.Constraint("DistanceY", 0, 2, -1, 1, Q("415 mm")),
])
pad9 = doc.addObject("PartDesign::Pad", "Pad008")
body.addObject(pad9)
pad9.Profile = sketch12
pad9.Length = 140

# Sketch on an angled plane
sketch13 = doc.addObject("Sketcher::SketchObject", "Sketch012")
body.addObject(sketch13)
sketch13.Placement = App.Placement(V(87.178578, -68.11137, -19.507266), App.Rotation(V(0.59167663, 0.795229762, -0.132394835), V(0.218362273, 0, 0.975867778), V(0.7760391, -0.606308194, -0.173648178), "ZXY"))
sketch13.addGeometry(Part.Circle(V(-178, 1311, 0), V(0, 0, 1), 30), False)
sketch13.addConstraint([
    Sketcher.Constraint("Diameter", 0, Q("60 mm")),
    Sketcher.Constraint("DistanceX", 0, 3, -1, 1, Q("177.945689 mm")),
    Sketcher.Constraint("DistanceY", -1, 1, 0, 3, Q("1311.441781 mm")),
])
pad10 = doc.addObject("PartDesign::Pad", "Pad009")
body.addObject(pad10)
pad10.Profile = sketch13
pad10.Length = 100

# Sketch on an angled plane
sketch14 = doc.addObject("Sketcher::SketchObject", "Sketch013")
body.addObject(sketch14)
sketch14.Placement = App.Placement(V(164.782488, -128.74219, -36.872084), App.Rotation(V(0.59167663, 0.795229762, -0.132394835), V(0.218362273, 0, 0.975867778), V(0.7760391, -0.606308194, -0.173648178), "ZXY"))
sketch14.addGeometry(Part.Circle(V(-178, 1311, 0), V(0, 0, 1), 82), False)
sketch14.addConstraint([
    Sketcher.Constraint("Diameter", 0, Q("165 mm")),
    Sketcher.Constraint("DistanceX", 0, 3, -1, 1, Q("177.945689 mm")),
    Sketcher.Constraint("DistanceY", -1, 1, 0, 3, Q("1311.441781 mm")),
])
pad11 = doc.addObject("PartDesign::Pad", "Pad010")
body.addObject(pad11)
pad11.Profile = sketch14
pad11.Length = 15

# Sketch on XZ plane
sketch15 = doc.addObject("Sketcher::SketchObject", "Sketch014")
body.addObject(sketch15)
sketch15.AttachmentSupport = (doc.XZ_Plane, [""])
sketch15.MapMode = "FlatFace"
sketch15.AttachmentOffset = App.Placement(V(0, 0, -415), App.Rotation())
sketch15.addGeometry([
    Part.LineSegment(V(1215, 2012, 0), V(1215, 1892, 0)),  # 0
    Part.LineSegment(V(1215, 1892, 0), V(-105, 1892, 0)),  # 1
    Part.LineSegment(V(-105, 1892, 0), V(-105, 2012, 0)),  # 2
    Part.LineSegment(V(-105, 2012, 0), V(1215, 2012, 0)),  # 3
    Part.LineSegment(V(-125, 2012, 0), V(-125, 1892, 0)),  # 4
    Part.LineSegment(V(-125, 1892, 0), V(-415, 1892, 0)),  # 5
    Part.LineSegment(V(-415, 1892, 0), V(-415, 2012, 0)),  # 6
    Part.LineSegment(V(-415, 2012, 0), V(-125, 2012, 0)),  # 7
    Part.LineSegment(V(1525, 2012, 0), V(1525, 1892, 0)),  # 8
    Part.LineSegment(V(1525, 1892, 0), V(1235, 1892, 0)),  # 9
    Part.LineSegment(V(1235, 1892, 0), V(1235, 2012, 0)),  # 10
    Part.LineSegment(V(1235, 2012, 0), V(1525, 2012, 0)),  # 11
], False)
sketch15.addConstraint([
    Sketcher.Constraint("Coincident", 0, 2, 1, 1),
    Sketcher.Constraint("Coincident", 1, 2, 2, 1),
    Sketcher.Constraint("Coincident", 2, 2, 3, 1),
    Sketcher.Constraint("Coincident", 3, 2, 0, 1),
    Sketcher.Constraint("Coincident", 4, 2, 5, 1),
    Sketcher.Constraint("Coincident", 5, 2, 6, 1),
    Sketcher.Constraint("Coincident", 6, 2, 7, 1),
    Sketcher.Constraint("Coincident", 7, 2, 4, 1),
    Sketcher.Constraint("Coincident", 8, 2, 9, 1),
    Sketcher.Constraint("Coincident", 9, 2, 10, 1),
    Sketcher.Constraint("Coincident", 10, 2, 11, 1),
    Sketcher.Constraint("Coincident", 11, 2, 8, 1),
    Sketcher.Constraint("Vertical", 0),
    Sketcher.Constraint("Horizontal", 1),
    Sketcher.Constraint("Vertical", 2),
    Sketcher.Constraint("Horizontal", 3),
    Sketcher.Constraint("Vertical", 4),
    Sketcher.Constraint("Horizontal", 5),
    Sketcher.Constraint("Vertical", 6),
    Sketcher.Constraint("Horizontal", 7),
    Sketcher.Constraint("Vertical", 8),
    Sketcher.Constraint("Horizontal", 9),
    Sketcher.Constraint("Vertical", 10),
    Sketcher.Constraint("Horizontal", 11),
    Sketcher.Constraint("Horizontal", 1, 2, 4, 2),
    Sketcher.Constraint("Horizontal", 3, 2, 6, 2),
    Sketcher.Constraint("Horizontal", 5, 2, 8, 2),
    Sketcher.Constraint("Horizontal", 7, 2, 10, 2),
    Sketcher.Constraint("Equal", 7, 9),
    Sketcher.Constraint("DistanceX", 1, 2, 1, 1, Q("1320 mm")),
    Sketcher.Constraint("DistanceX", 5, 2, 5, 1, Q("290 mm")),
    Sketcher.Constraint("DistanceY", 0, 2, 0, 1, Q("120 mm")),
    Sketcher.Constraint("DistanceX", -1, 1, 0, 2, Q("1215 mm")),
    Sketcher.Constraint("DistanceY", -1, 1, 0, 2, Q("1892 mm")),
    Sketcher.Constraint("DistanceX", 4, 2, -1, 1, Q("125 mm")),
    Sketcher.Constraint("DistanceX", -1, 1, 8, 2, Q("1525 mm")),
])
pocket3 = doc.addObject("PartDesign::Pocket", "Pocket002")
body.addObject(pocket3)
pocket3.Profile = sketch15
pocket3.Length = 50
pocket3.Reversed = True

# Sketch on XZ plane
sketch16 = doc.addObject("Sketcher::SketchObject", "Sketch015")
body.addObject(sketch16)
sketch16.AttachmentSupport = (doc.XZ_Plane, [""])
sketch16.MapMode = "FlatFace"
sketch16.AttachmentOffset = App.Placement(V(0, 0, 415), App.Rotation())
sketch16.addGeometry([
    Part.LineSegment(V(1235, 2012, 0), V(1235, 1892, 0)),  # 0
    Part.LineSegment(V(1235, 1892, 0), V(1525, 1892, 0)),  # 1
    Part.LineSegment(V(1525, 1892, 0), V(1525, 2012, 0)),  # 2
    Part.LineSegment(V(1525, 2012, 0), V(1235, 2012, 0)),  # 3
    Part.LineSegment(V(-105, 2012, 0), V(-105, 1892, 0)),  # 4
    Part.LineSegment(V(-105, 1892, 0), V(1215, 1892, 0)),  # 5
    Part.LineSegment(V(1215, 1892, 0), V(1215, 2012, 0)),  # 6
    Part.LineSegment(V(1215, 2012, 0), V(-105, 2012, 0)),  # 7
    Part.LineSegment(V(-415, 2012, 0), V(-415, 1892, 0)),  # 8
    Part.LineSegment(V(-415, 1892, 0), V(-125, 1892, 0)),  # 9
    Part.LineSegment(V(-125, 1892, 0), V(-125, 2012, 0)),  # 10
    Part.LineSegment(V(-125, 2012, 0), V(-415, 2012, 0)),  # 11
], False)
sketch16.addConstraint([
    Sketcher.Constraint("Coincident", 0, 2, 1, 1),
    Sketcher.Constraint("Coincident", 1, 2, 2, 1),
    Sketcher.Constraint("Coincident", 2, 2, 3, 1),
    Sketcher.Constraint("Coincident", 3, 2, 0, 1),
    Sketcher.Constraint("Coincident", 4, 2, 5, 1),
    Sketcher.Constraint("Coincident", 5, 2, 6, 1),
    Sketcher.Constraint("Coincident", 6, 2, 7, 1),
    Sketcher.Constraint("Coincident", 7, 2, 4, 1),
    Sketcher.Constraint("Coincident", 8, 2, 9, 1),
    Sketcher.Constraint("Coincident", 9, 2, 10, 1),
    Sketcher.Constraint("Coincident", 10, 2, 11, 1),
    Sketcher.Constraint("Coincident", 11, 2, 8, 1),
    Sketcher.Constraint("Vertical", 0),
    Sketcher.Constraint("Horizontal", 1),
    Sketcher.Constraint("Vertical", 2),
    Sketcher.Constraint("Horizontal", 3),
    Sketcher.Constraint("Vertical", 4),
    Sketcher.Constraint("Horizontal", 5),
    Sketcher.Constraint("Vertical", 6),
    Sketcher.Constraint("Horizontal", 7),
    Sketcher.Constraint("Vertical", 8),
    Sketcher.Constraint("Horizontal", 9),
    Sketcher.Constraint("Vertical", 10),
    Sketcher.Constraint("Horizontal", 11),
    Sketcher.Constraint("Horizontal", 1, 2, 4, 2),
    Sketcher.Constraint("Horizontal", 3, 2, 6, 2),
    Sketcher.Constraint("Horizontal", 5, 2, 8, 2),
    Sketcher.Constraint("Horizontal", 7, 2, 10, 2),
    Sketcher.Constraint("Equal", 3, 9),
    Sketcher.Constraint("DistanceX", 1, 1, 1, 2, Q("290 mm")),
    Sketcher.Constraint("DistanceX", 5, 1, 5, 2, Q("1320 mm")),
    Sketcher.Constraint("DistanceY", 0, 2, 0, 1, Q("120 mm")),
    Sketcher.Constraint("DistanceX", -1, 1, 0, 2, Q("1235 mm")),
    Sketcher.Constraint("DistanceY", -1, 1, 0, 2, Q("1892 mm")),
    Sketcher.Constraint("DistanceX", 4, 2, -1, 1, Q("105 mm")),
    Sketcher.Constraint("DistanceX", 8, 2, -1, 1, Q("415 mm")),
])
pocket4 = doc.addObject("PartDesign::Pocket", "Pocket003")
body.addObject(pocket4)
pocket4.Profile = sketch16
pocket4.Length = 50

# Sketch on YZ plane
sketch17 = doc.addObject("Sketcher::SketchObject", "Sketch016")
body.addObject(sketch17)
sketch17.AttachmentSupport = (doc.YZ_Plane, [""])
sketch17.MapMode = "FlatFace"
sketch17.AttachmentOffset = App.Placement(V(0, 0, 1525), App.Rotation())
sketch17.addGeometry([
    Part.LineSegment(V(-345, 2012, 0), V(-345, 1892, 0)),
    Part.LineSegment(V(-345, 1892, 0), V(345, 1892, 0)),
    Part.LineSegment(V(345, 1892, 0), V(345, 2012, 0)),
    Part.LineSegment(V(345, 2012, 0), V(-345, 2012, 0)),
], False)
sketch17.addConstraint([
    Sketcher.Constraint("Coincident", 0, 2, 1, 1),
    Sketcher.Constraint("Coincident", 1, 2, 2, 1),
    Sketcher.Constraint("Coincident", 2, 2, 3, 1),
    Sketcher.Constraint("Coincident", 3, 2, 0, 1),
    Sketcher.Constraint("Vertical", 0),
    Sketcher.Constraint("Horizontal", 1),
    Sketcher.Constraint("Vertical", 2),
    Sketcher.Constraint("Horizontal", 3),
    Sketcher.Constraint("DistanceX", 1, 1, 1, 2, Q("690 mm")),
    Sketcher.Constraint("DistanceY", 0, 2, 0, 1, Q("120 mm")),
    Sketcher.Constraint("DistanceX", 0, 2, -1, 1, Q("345 mm")),
    Sketcher.Constraint("DistanceY", -1, 1, 0, 2, Q("1892 mm")),
])
pocket5 = doc.addObject("PartDesign::Pocket", "Pocket004")
body.addObject(pocket5)
pocket5.Profile = sketch17
pocket5.Length = 50

# Sketch on YZ plane
sketch18 = doc.addObject("Sketcher::SketchObject", "Sketch017")
body.addObject(sketch18)
sketch18.AttachmentSupport = (doc.YZ_Plane, [""])
sketch18.MapMode = "FlatFace"
sketch18.AttachmentOffset = App.Placement(V(0, 0, -415), App.Rotation())
sketch18.addGeometry([
    Part.LineSegment(V(345, 2012, 0), V(345, 1892, 0)),
    Part.LineSegment(V(345, 1892, 0), V(-345, 1892, 0)),
    Part.LineSegment(V(-345, 1892, 0), V(-345, 2012, 0)),
    Part.LineSegment(V(-345, 2012, 0), V(345, 2012, 0)),
], False)
sketch18.addConstraint([
    Sketcher.Constraint("Coincident", 0, 2, 1, 1),
    Sketcher.Constraint("Coincident", 1, 2, 2, 1),
    Sketcher.Constraint("Coincident", 2, 2, 3, 1),
    Sketcher.Constraint("Coincident", 3, 2, 0, 1),
    Sketcher.Constraint("Vertical", 0),
    Sketcher.Constraint("Horizontal", 1),
    Sketcher.Constraint("Vertical", 2),
    Sketcher.Constraint("Horizontal", 3),
    Sketcher.Constraint("DistanceX", 1, 2, 1, 1, Q("690 mm")),
    Sketcher.Constraint("DistanceY", 0, 2, 0, 1, Q("120 mm")),
    Sketcher.Constraint("DistanceX", -1, 1, 0, 2, Q("345 mm")),
    Sketcher.Constraint("DistanceY", -1, 1, 0, 2, Q("1892 mm")),
])
pocket6 = doc.addObject("PartDesign::Pocket", "Pocket005")
body.addObject(pocket6)
pocket6.Profile = sketch18
pocket6.Length = 50
pocket6.Reversed = True

# Sketch on YZ plane
sketch19 = doc.addObject("Sketcher::SketchObject", "Sketch018")
body.addObject(sketch19)
sketch19.AttachmentSupport = (doc.YZ_Plane, [""])
sketch19.MapMode = "FlatFace"
sketch19.AttachmentOffset = App.Placement(V(0, 0, 200), App.Rotation())
sketch19.addGeometry(Part.Circle(V(0, 1782, 0), V(0, 0, 1), 40), False)
sketch19.addConstraint([
    Sketcher.Constraint("PointOnObject", 0, 3, -2),
    Sketcher.Constraint("Diameter", 0, Q("80 mm")),
    Sketcher.Constraint("DistanceY", -1, 1, 0, 3, Q("1782 mm")),
])
pad12 = doc.addObject("PartDesign::Pad", "Pad011")
body.addObject(pad12)
pad12.Profile = sketch19
pad12.Length = 240

# Sketch on YZ plane
sketch20 = doc.addObject("Sketcher::SketchObject", "Sketch019")
body.addObject(sketch20)
sketch20.AttachmentSupport = (doc.YZ_Plane, [""])
sketch20.MapMode = "FlatFace"
sketch20.AttachmentOffset = App.Placement(V(0, 0, 440), App.Rotation())
sketch20.addGeometry(Part.Circle(V(0, 1782, 0), V(0, 0, 1), 82), False)
sketch20.addConstraint([
    Sketcher.Constraint("PointOnObject", 0, 3, -2),
    Sketcher.Constraint("Diameter", 0, Q("165 mm")),
    Sketcher.Constraint("DistanceY", -1, 1, 0, 3, Q("1782 mm")),
])
pad13 = doc.addObject("PartDesign::Pad", "Pad012")
body.addObject(pad13)
pad13.Profile = sketch20
pad13.Length = 15

# Sketch on YZ plane
sketch21 = doc.addObject("Sketcher::SketchObject", "Sketch020")
body.addObject(sketch21)
sketch21.AttachmentSupport = (doc.YZ_Plane, [""])
sketch21.MapMode = "FlatFace"
sketch21.AttachmentOffset = App.Placement(V(0, 0, 455), App.Rotation())
sketch21.addGeometry([
    Part.Circle(V(0, 1720, 0), V(0, 0, 1), 9),
    Part.Circle(V(62, 1782, 0), V(0, 0, 1), 9),
    Part.Circle(V(0, 1844, 0), V(0, 0, 1), 9),
    Part.Circle(V(-62, 1782, 0), V(0, 0, 1), 9),
], False)
sketch21.addConstraint([
    Sketcher.Constraint("Equal", 0, 1),
    Sketcher.Constraint("Equal", 1, 2),
    Sketcher.Constraint("Equal", 2, 3),
    Sketcher.Constraint("Symmetric", 1, 3, 3, 3, -2),
    Sketcher.Constraint("PointOnObject", 0, 3, -2),
    Sketcher.Constraint("PointOnObject", 2, 3, -2),
    Sketcher.Constraint("Diameter", 0, Q("18 mm")),
    Sketcher.Constraint("DistanceY", -1, 1, 1, 3, Q("1782 mm")),
    Sketcher.Constraint("DistanceY", 0, 3, 2, 3, Q("125 mm")),
    Sketcher.Constraint("DistanceX", 3, 3, 1, 3, Q("125 mm")),
    Sketcher.Constraint("DistanceY", -1, 1, 0, 3, Q("1719.5 mm")),
])
pocket7 = doc.addObject("PartDesign::Pocket", "Pocket006")
body.addObject(pocket7)
pocket7.Profile = sketch21
pocket7.Length = 25

# Sketch on YZ plane
sketch22 = doc.addObject("Sketcher::SketchObject", "Sketch021")
body.addObject(sketch22)
sketch22.AttachmentSupport = (doc.YZ_Plane, [""])
sketch22.MapMode = "FlatFace"
sketch22.AttachmentOffset = App.Placement(V(0, 0, 455), App.Rotation())
sketch22.addGeometry(Part.Circle(V(0, 1782, 0), V(0, 0, 1), 25), False)
sketch22.addConstraint([
    Sketcher.Constraint("PointOnObject", 0, 3, -2),
    Sketcher.Constraint("Diameter", 0, Q("50 mm")),
    Sketcher.Constraint("DistanceY", -1, 1, 0, 3, Q("1782 mm")),
])
pocket8 = doc.addObject("PartDesign::Pocket", "Pocket007")
body.addObject(pocket8)
pocket8.Profile = sketch22
pocket8.Length = 500

# Sketch on XY plane
sketch23 = doc.addObject("Sketcher::SketchObject", "Sketch022")
body.addObject(sketch23)
sketch23.AttachmentSupport = (doc.XY_Plane, [""])
sketch23.MapMode = "FlatFace"
sketch23.AttachmentOffset = App.Placement(V(0, 0, -120), App.Rotation())
sketch23.addGeometry(Part.Circle(V(0, 0, 0), V(0, 0, 1), 75), False)
sketch23.addConstraint([
    Sketcher.Constraint("Coincident", 0, 3, -1, 1),
    Sketcher.Constraint("Diameter", 0, Q("150 mm")),
])
pocket9 = doc.addObject("PartDesign::Pocket", "Pocket008")
body.addObject(pocket9)
pocket9.Profile = sketch23
pocket9.Length = 1000
pocket9.Reversed = True

doc.recompute()
